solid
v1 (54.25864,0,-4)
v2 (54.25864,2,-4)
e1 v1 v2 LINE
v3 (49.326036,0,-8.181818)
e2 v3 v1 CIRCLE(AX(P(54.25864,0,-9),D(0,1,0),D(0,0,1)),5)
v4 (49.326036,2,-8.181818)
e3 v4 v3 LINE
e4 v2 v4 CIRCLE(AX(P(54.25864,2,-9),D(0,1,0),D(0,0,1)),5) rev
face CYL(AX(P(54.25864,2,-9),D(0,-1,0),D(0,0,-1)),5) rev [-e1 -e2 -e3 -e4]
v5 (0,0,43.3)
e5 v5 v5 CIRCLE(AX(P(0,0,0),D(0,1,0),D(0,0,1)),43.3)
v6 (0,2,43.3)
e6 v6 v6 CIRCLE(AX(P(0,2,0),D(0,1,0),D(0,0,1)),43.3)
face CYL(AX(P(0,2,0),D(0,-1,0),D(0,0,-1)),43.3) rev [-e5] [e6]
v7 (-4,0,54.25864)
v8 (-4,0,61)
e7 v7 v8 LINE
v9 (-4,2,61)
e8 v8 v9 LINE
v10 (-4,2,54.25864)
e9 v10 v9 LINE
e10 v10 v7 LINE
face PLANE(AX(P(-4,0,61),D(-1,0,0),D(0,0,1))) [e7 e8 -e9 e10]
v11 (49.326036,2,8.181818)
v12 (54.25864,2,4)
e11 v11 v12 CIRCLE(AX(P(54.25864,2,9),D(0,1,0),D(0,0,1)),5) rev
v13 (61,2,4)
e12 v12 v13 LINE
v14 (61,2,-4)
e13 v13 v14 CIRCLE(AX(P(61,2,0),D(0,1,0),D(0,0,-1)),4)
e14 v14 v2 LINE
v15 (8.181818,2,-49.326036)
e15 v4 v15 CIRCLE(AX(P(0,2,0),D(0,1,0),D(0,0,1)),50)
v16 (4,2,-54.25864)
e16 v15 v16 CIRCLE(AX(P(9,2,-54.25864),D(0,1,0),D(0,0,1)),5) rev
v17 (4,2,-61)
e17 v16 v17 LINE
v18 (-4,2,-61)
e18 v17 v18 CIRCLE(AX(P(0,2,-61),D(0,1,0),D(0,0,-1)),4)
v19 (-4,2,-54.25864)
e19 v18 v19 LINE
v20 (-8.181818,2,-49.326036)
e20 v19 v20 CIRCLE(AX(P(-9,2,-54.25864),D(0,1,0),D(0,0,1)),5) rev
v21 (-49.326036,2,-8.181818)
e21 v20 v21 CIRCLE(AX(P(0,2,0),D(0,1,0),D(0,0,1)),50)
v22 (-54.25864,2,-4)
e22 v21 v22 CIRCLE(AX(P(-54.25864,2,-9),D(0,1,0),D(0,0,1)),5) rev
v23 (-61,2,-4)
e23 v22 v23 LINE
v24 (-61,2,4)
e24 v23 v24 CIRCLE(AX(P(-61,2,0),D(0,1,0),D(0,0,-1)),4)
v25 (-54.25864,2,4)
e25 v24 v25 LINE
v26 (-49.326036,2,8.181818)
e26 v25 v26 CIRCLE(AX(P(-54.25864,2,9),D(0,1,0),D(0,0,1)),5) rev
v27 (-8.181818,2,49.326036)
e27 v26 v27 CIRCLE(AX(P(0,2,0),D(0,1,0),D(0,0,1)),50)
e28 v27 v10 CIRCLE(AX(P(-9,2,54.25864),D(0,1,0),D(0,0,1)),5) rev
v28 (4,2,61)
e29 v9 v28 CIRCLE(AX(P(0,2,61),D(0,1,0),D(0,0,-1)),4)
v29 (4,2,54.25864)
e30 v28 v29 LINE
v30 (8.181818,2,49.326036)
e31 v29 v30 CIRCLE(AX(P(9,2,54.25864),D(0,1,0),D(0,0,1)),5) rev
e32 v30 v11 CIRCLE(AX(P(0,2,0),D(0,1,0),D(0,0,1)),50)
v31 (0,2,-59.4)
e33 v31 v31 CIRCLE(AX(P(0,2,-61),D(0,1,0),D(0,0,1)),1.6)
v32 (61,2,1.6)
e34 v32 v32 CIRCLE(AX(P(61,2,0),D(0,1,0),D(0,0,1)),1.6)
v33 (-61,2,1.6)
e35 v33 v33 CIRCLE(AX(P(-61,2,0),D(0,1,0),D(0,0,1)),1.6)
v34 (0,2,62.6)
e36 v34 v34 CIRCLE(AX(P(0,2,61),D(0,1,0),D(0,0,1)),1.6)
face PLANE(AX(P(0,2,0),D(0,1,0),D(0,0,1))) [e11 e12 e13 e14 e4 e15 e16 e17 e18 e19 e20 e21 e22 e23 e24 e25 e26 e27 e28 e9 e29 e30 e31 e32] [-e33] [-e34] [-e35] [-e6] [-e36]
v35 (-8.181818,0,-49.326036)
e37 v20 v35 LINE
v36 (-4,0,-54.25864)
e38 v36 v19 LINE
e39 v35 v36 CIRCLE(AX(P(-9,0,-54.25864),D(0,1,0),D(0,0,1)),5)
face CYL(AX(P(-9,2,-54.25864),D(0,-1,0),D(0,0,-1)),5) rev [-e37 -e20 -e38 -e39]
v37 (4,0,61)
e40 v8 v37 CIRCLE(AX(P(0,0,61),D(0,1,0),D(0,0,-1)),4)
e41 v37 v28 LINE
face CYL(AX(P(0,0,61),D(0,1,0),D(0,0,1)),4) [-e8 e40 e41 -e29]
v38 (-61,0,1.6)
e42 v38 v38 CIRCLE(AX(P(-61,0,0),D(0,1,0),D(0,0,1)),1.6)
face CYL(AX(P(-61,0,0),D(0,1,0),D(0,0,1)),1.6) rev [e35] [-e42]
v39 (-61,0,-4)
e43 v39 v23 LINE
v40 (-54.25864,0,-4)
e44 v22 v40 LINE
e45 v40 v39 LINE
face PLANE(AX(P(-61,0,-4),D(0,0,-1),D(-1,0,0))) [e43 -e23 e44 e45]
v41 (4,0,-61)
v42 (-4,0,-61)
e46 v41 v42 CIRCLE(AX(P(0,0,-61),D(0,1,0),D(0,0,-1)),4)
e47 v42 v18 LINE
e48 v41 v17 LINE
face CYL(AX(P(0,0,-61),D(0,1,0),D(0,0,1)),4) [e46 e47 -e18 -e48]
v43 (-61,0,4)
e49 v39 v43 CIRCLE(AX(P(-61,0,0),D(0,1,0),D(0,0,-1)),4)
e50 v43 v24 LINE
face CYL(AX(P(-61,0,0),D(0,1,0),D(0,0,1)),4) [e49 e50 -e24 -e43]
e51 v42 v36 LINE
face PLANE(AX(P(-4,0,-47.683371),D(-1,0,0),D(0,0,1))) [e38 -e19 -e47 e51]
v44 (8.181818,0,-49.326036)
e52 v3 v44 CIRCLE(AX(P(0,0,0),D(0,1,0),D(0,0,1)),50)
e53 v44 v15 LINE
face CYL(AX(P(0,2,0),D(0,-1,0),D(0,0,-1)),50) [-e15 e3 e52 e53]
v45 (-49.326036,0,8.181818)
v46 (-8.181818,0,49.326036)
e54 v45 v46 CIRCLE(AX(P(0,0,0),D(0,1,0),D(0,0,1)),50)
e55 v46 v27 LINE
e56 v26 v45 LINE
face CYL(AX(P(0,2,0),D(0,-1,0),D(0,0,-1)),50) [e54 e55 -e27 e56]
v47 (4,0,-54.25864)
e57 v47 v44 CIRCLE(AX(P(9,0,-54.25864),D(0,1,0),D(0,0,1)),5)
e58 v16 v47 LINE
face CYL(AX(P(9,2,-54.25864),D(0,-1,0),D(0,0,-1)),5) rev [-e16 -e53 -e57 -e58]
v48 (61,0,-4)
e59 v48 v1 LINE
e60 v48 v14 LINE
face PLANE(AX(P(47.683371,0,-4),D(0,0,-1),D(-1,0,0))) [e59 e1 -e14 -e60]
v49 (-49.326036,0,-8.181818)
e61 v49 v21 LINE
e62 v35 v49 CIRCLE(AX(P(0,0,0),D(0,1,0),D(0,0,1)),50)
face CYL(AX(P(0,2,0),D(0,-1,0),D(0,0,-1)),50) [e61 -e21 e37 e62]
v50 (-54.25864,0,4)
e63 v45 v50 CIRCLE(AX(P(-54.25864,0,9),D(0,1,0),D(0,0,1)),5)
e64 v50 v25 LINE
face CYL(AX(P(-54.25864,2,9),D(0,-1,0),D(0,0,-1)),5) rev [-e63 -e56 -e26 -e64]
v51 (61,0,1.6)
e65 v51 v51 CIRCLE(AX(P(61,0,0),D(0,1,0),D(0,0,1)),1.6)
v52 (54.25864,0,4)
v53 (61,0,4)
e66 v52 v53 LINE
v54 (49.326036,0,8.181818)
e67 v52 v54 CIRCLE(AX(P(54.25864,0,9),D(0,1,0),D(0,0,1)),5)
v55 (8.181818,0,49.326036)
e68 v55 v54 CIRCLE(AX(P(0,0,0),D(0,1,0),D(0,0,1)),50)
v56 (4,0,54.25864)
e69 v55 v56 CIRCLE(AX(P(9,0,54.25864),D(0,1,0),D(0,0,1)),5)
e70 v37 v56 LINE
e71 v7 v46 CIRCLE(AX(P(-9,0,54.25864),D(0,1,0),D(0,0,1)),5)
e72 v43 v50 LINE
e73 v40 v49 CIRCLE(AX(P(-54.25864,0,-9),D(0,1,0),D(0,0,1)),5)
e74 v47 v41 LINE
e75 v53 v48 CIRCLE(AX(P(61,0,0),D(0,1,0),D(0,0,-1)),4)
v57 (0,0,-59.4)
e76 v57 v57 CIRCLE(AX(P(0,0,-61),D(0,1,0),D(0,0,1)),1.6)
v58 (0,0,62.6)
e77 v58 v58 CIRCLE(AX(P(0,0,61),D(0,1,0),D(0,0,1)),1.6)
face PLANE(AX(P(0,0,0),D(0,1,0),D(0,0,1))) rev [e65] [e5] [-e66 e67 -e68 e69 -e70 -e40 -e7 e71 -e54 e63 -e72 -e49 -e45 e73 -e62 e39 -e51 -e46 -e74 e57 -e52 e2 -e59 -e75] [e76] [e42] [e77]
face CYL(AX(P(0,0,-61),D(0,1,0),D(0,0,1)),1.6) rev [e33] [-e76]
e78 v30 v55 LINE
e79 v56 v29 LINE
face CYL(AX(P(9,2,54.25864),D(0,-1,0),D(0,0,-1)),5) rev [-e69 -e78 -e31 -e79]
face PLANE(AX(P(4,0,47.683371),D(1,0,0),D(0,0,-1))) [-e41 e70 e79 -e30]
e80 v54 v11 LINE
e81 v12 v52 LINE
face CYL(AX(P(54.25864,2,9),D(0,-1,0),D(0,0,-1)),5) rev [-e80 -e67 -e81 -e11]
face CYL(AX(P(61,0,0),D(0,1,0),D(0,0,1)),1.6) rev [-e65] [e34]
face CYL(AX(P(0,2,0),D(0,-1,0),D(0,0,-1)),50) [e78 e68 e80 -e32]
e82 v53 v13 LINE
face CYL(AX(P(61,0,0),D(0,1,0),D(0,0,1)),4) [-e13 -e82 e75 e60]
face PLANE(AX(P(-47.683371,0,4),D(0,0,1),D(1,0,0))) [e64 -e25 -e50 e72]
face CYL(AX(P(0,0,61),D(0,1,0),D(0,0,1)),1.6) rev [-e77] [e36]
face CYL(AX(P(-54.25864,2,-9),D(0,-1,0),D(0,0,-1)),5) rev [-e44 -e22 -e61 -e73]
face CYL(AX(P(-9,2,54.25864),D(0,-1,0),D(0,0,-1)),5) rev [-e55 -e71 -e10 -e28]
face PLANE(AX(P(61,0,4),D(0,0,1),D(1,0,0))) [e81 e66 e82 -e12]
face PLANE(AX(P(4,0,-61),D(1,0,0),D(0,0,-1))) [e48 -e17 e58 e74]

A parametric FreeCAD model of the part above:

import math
import FreeCAD as App
import Part
import Sketcher


def edges_at(feature, points):
    """Names of the edges that pass closest to the given points."""
    edges = feature.Shape.Edges
    near = lambda p: min(range(len(edges)), key=lambda i: edges[i].distToShape(Part.Vertex(*p))[0])
    return sorted({f"Edge{near(p) + 1}" for p in points})

doc = App.newDocument("Part")
params = doc.addObject("Spreadsheet::Sheet", "Params")
for row, (alias, value) in enumerate([
    ("sketch1_diameter", "100 mm"),
    ("sketch1_diameter2", "86.6 mm"),
    ("pad1_length", "2 mm"),
    ("sketch2_radius", "4 mm"),
    ("sketch2_diameter", "3.2 mm"),
    ("pad2_length", "2 mm"),
    ("fillet_radius", "5 mm"),
], start=1):
    params.set(f"A{row}", alias)
    params.set(f"B{row}", "=" + value)
    params.setAlias(f"B{row}", alias)

body = doc.addObject("PartDesign::Body", "Body")

# Sketch on XZ plane
sketch1 = body.newObject("Sketcher::SketchObject", "Sketch")
sketch1.AttachmentSupport = (doc.getObject("XZ_Plane"), [""])
sketch1.MapMode = "FlatFace"
sketch1.addGeometry(Part.Circle(App.Vector(0, 0, 0), App.Vector(0, 0, 1), 50), False)
sketch1.addGeometry(Part.Circle(App.Vector(0, 0, 0), App.Vector(0, 0, 1), 43), False)
sketch1.addConstraint(Sketcher.Constraint("Coincident", 0, 3, -1, 1))
sketch1.addConstraint(Sketcher.Constraint("Coincident", 1, 3, -1, 1))
sketch1.addConstraint(Sketcher.Constraint("Diameter", 0, 100.0))
sketch1.addConstraint(Sketcher.Constraint("Diameter", 1, 86.6))
sketch1.setExpression("Constraints[2]", "Params.sketch1_diameter")
sketch1.setExpression("Constraints[3]", "Params.sketch1_diameter2")
pad1 = body.newObject("PartDesign::Pad", "Pad")
pad1.Profile = sketch1
pad1.setExpression("Length", "Params.pad1_length")
pad1.Reversed = True

# Sketch on XZ plane
sketch2 = body.newObject("Sketcher::SketchObject", "Sketch001")
sketch2.AttachmentSupport = (doc.getObject("XZ_Plane"), [""])
sketch2.MapMode = "FlatFace"
sketch2.AttachmentOffset = App.Placement(App.Vector(0, 0, -2), App.Rotation())
sketch2.addGeometry(Part.LineSegment(App.Vector(47.7, -4, 0), App.Vector(47.7, 4, 0)), False)
sketch2.addGeometry(Part.LineSegment(App.Vector(47.7, 4, 0), App.Vector(61, 4, 0)), False)
sketch2.addGeometry(Part.ArcOfCircle(Part.Circle(App.Vector(61, 0, 0), App.Vector(0, 0, 1), 4), math.radians(-90), math.radians(90)), False)
sketch2.addGeometry(Part.LineSegment(App.Vector(61, -4, 0), App.Vector(47.7, -4, 0)), False)
sketch2.addGeometry(Part.Circle(App.Vector(61, 0, 0), App.Vector(0, 0, 1), 1.6), False)
sketch2.addGeometry(Part.LineSegment(App.Vector(-4, 47.7, 0), App.Vector(-4, 61, 0)), False)
sketch2.addGeometry(Part.ArcOfCircle(Part.Circle(App.Vector(0, 61, 0), App.Vector(0, 0, 1), 4), math.radians(0), math.radians(180)), False)
sketch2.addGeometry(Part.LineSegment(App.Vector(4, 61, 0), App.Vector(4, 47.7, 0)), False)
sketch2.addGeometry(Part.LineSegment(App.Vector(4, 47.7, 0), App.Vector(-4, 47.7, 0)), False)
sketch2.addGeometry(Part.Circle(App.Vector(0, 61, 0), App.Vector(0, 0, 1), 1.6), False)
sketch2.addGeometry(Part.LineSegment(App.Vector(-47.7, -4, 0), App.Vector(-61, -4, 0)), False)
sketch2.addGeometry(Part.ArcOfCircle(Part.Circle(App.Vector(-61, 0, 0), App.Vector(0, 0, 1), 4), math.radians(90), math.radians(270)), False)
sketch2.addGeometry(Part.LineSegment(App.Vector(-61, 4, 0), App.Vector(-47.7, 4, 0)), False)
sketch2.addGeometry(Part.LineSegment(App.Vector(-47.7, 4, 0), App.Vector(-47.7, -4, 0)), False)
sketch2.addGeometry(Part.Circle(App.Vector(-61, 0, 0), App.Vector(0, 0, 1), 1.6), False)
sketch2.addGeometry(Part.LineSegment(App.Vector(4, -47.7, 0), App.Vector(4, -61, 0)), False)
sketch2.addGeometry(Part.ArcOfCircle(Part.Circle(App.Vector(0, -61, 0), App.Vector(0, 0, 1), 4), math.radians(180), math.radians(360)), False)
sketch2.addGeometry(Part.LineSegment(App.Vector(-4, -61, 0), App.Vector(-4, -47.7, 0)), False)
sketch2.addGeometry(Part.LineSegment(App.Vector(-4, -47.7, 0), App.Vector(4, -47.7, 0)), False)
sketch2.addGeometry(Part.Circle(App.Vector(0, -61, 0), App.Vector(0, 0, 1), 1.6), False)
sketch2.addConstraint(Sketcher.Constraint("Coincident", 0, 2, 1, 1))
sketch2.addConstraint(Sketcher.Constraint("Tangent", 1, 2, 2, 2))
sketch2.addConstraint(Sketcher.Constraint("Tangent", 2, 1, 3, 1))
sketch2.addConstraint(Sketcher.Constraint("Coincident", 3, 2, 0, 1))
sketch2.addConstraint(Sketcher.Constraint("Tangent", 5, 2, 6, 2))
sketch2.addConstraint(Sketcher.Constraint("Tangent", 6, 1, 7, 1))
sketch2.addConstraint(Sketcher.Constraint("Coincident", 7, 2, 8, 1))
sketch2.addConstraint(Sketcher.Constraint("Coincident", 8, 2, 5, 1))
sketch2.addConstraint(Sketcher.Constraint("Tangent", 10, 2, 11, 2))
sketch2.addConstraint(Sketcher.Constraint("Tangent", 11, 1, 12, 1))
sketch2.addConstraint(Sketcher.Constraint("Coincident", 12, 2, 13, 1))
sketch2.addConstraint(Sketcher.Constraint("Coincident", 13, 2, 10, 1))
sketch2.addConstraint(Sketcher.Constraint("Tangent", 15, 2, 16, 2))
sketch2.addConstraint(Sketcher.Constraint("Tangent", 16, 1, 17, 1))
sketch2.addConstraint(Sketcher.Constraint("Coincident", 17, 2, 18, 1))
sketch2.addConstraint(Sketcher.Constraint("Coincident", 18, 2, 15, 1))
sketch2.addConstraint(Sketcher.Constraint("Vertical", 0))
sketch2.addConstraint(Sketcher.Constraint("Horizontal", 1))
sketch2.addConstraint(Sketcher.Constraint("Horizontal", 3))
sketch2.addConstraint(Sketcher.Constraint("Vertical", 5))
sketch2.addConstraint(Sketcher.Constraint("Vertical", 7))
sketch2.addConstraint(Sketcher.Constraint("Horizontal", 8))
sketch2.addConstraint(Sketcher.Constraint("Horizontal", 10))
sketch2.addConstraint(Sketcher.Constraint("Horizontal", 12))
sketch2.addConstraint(Sketcher.Constraint("Vertical", 13))
sketch2.addConstraint(Sketcher.Constraint("Vertical", 15))
sketch2.addConstraint(Sketcher.Constraint("Vertical", 17))
sketch2.addConstraint(Sketcher.Constraint("Horizontal", 18))
sketch2.addConstraint(Sketcher.Constraint("Coincident", 4, 3, 2, 3))
sketch2.addConstraint(Sketcher.Constraint("Coincident", 9, 3, 6, 3))
sketch2.addConstraint(Sketcher.Constraint("Coincident", 14, 3, 11, 3))
sketch2.addConstraint(Sketcher.Constraint("Coincident", 19, 3, 16, 3))
sketch2.addConstraint(Sketcher.Constraint("Equal", 2, 6))
sketch2.addConstraint(Sketcher.Constraint("Equal", 4, 9))
sketch2.addConstraint(Sketcher.Constraint("Equal", 6, 11))
sketch2.addConstraint(Sketcher.Constraint("Equal", 9, 14))
sketch2.addConstraint(Sketcher.Constraint("Equal", 11, 16))
sketch2.addConstraint(Sketcher.Constraint("Equal", 14, 19))
sketch2.addConstraint(Sketcher.Constraint("Symmetric", 2, 3, 11, 3, -1, 1))
sketch2.addConstraint(Sketcher.Constraint("Symmetric", 6, 3, 16, 3, -1, 1))
sketch2.addConstraint(Sketcher.Constraint("Symmetric", 0, 2, 12, 2, -2))
sketch2.addConstraint(Sketcher.Constraint("Symmetric", 8, 2, 17, 2, -1))
sketch2.addConstraint(Sketcher.Constraint("Equal", 12, 5))
sketch2.addConstraint(Sketcher.Constraint("Radius", 2, 4.0))
sketch2.addConstraint(Sketcher.Constraint("Diameter", 4, 3.2))
sketch2.addConstraint(Sketcher.Constraint("DistanceX", -1, 1, 2, 3, 61.0))
sketch2.addConstraint(Sketcher.Constraint("DistanceY", -1, 1, 6, 3, 61.0))
sketch2.addConstraint(Sketcher.Constraint("DistanceX", 1, 1, 1, 2, 13.316629))
sketch2.setExpression("Constraints[43]", "Params.sketch2_radius")
sketch2.setExpression("Constraints[44]", "Params.sketch2_diameter")
pad2 = body.newObject("PartDesign::Pad", "Pad001")
pad2.Profile = sketch2
pad2.setExpression("Length", "Params.pad2_length")
doc.recompute()

fillet = body.newObject("PartDesign::Fillet", "Fillet")
fillet.Base = (pad2, edges_at(pad2, [
    (49.84, 1, -4),
    (49.84, 1, 4),
    (-4, 1, 49.84),
    (4, 1, 49.84),
    (-49.84, 1, -4),
    (-49.84, 1, 4),
    (4, 1, -49.84),
    (-4, 1, -49.84),
]))
fillet.setExpression("Radius", "Params.fillet_radius")

doc.recompute()
